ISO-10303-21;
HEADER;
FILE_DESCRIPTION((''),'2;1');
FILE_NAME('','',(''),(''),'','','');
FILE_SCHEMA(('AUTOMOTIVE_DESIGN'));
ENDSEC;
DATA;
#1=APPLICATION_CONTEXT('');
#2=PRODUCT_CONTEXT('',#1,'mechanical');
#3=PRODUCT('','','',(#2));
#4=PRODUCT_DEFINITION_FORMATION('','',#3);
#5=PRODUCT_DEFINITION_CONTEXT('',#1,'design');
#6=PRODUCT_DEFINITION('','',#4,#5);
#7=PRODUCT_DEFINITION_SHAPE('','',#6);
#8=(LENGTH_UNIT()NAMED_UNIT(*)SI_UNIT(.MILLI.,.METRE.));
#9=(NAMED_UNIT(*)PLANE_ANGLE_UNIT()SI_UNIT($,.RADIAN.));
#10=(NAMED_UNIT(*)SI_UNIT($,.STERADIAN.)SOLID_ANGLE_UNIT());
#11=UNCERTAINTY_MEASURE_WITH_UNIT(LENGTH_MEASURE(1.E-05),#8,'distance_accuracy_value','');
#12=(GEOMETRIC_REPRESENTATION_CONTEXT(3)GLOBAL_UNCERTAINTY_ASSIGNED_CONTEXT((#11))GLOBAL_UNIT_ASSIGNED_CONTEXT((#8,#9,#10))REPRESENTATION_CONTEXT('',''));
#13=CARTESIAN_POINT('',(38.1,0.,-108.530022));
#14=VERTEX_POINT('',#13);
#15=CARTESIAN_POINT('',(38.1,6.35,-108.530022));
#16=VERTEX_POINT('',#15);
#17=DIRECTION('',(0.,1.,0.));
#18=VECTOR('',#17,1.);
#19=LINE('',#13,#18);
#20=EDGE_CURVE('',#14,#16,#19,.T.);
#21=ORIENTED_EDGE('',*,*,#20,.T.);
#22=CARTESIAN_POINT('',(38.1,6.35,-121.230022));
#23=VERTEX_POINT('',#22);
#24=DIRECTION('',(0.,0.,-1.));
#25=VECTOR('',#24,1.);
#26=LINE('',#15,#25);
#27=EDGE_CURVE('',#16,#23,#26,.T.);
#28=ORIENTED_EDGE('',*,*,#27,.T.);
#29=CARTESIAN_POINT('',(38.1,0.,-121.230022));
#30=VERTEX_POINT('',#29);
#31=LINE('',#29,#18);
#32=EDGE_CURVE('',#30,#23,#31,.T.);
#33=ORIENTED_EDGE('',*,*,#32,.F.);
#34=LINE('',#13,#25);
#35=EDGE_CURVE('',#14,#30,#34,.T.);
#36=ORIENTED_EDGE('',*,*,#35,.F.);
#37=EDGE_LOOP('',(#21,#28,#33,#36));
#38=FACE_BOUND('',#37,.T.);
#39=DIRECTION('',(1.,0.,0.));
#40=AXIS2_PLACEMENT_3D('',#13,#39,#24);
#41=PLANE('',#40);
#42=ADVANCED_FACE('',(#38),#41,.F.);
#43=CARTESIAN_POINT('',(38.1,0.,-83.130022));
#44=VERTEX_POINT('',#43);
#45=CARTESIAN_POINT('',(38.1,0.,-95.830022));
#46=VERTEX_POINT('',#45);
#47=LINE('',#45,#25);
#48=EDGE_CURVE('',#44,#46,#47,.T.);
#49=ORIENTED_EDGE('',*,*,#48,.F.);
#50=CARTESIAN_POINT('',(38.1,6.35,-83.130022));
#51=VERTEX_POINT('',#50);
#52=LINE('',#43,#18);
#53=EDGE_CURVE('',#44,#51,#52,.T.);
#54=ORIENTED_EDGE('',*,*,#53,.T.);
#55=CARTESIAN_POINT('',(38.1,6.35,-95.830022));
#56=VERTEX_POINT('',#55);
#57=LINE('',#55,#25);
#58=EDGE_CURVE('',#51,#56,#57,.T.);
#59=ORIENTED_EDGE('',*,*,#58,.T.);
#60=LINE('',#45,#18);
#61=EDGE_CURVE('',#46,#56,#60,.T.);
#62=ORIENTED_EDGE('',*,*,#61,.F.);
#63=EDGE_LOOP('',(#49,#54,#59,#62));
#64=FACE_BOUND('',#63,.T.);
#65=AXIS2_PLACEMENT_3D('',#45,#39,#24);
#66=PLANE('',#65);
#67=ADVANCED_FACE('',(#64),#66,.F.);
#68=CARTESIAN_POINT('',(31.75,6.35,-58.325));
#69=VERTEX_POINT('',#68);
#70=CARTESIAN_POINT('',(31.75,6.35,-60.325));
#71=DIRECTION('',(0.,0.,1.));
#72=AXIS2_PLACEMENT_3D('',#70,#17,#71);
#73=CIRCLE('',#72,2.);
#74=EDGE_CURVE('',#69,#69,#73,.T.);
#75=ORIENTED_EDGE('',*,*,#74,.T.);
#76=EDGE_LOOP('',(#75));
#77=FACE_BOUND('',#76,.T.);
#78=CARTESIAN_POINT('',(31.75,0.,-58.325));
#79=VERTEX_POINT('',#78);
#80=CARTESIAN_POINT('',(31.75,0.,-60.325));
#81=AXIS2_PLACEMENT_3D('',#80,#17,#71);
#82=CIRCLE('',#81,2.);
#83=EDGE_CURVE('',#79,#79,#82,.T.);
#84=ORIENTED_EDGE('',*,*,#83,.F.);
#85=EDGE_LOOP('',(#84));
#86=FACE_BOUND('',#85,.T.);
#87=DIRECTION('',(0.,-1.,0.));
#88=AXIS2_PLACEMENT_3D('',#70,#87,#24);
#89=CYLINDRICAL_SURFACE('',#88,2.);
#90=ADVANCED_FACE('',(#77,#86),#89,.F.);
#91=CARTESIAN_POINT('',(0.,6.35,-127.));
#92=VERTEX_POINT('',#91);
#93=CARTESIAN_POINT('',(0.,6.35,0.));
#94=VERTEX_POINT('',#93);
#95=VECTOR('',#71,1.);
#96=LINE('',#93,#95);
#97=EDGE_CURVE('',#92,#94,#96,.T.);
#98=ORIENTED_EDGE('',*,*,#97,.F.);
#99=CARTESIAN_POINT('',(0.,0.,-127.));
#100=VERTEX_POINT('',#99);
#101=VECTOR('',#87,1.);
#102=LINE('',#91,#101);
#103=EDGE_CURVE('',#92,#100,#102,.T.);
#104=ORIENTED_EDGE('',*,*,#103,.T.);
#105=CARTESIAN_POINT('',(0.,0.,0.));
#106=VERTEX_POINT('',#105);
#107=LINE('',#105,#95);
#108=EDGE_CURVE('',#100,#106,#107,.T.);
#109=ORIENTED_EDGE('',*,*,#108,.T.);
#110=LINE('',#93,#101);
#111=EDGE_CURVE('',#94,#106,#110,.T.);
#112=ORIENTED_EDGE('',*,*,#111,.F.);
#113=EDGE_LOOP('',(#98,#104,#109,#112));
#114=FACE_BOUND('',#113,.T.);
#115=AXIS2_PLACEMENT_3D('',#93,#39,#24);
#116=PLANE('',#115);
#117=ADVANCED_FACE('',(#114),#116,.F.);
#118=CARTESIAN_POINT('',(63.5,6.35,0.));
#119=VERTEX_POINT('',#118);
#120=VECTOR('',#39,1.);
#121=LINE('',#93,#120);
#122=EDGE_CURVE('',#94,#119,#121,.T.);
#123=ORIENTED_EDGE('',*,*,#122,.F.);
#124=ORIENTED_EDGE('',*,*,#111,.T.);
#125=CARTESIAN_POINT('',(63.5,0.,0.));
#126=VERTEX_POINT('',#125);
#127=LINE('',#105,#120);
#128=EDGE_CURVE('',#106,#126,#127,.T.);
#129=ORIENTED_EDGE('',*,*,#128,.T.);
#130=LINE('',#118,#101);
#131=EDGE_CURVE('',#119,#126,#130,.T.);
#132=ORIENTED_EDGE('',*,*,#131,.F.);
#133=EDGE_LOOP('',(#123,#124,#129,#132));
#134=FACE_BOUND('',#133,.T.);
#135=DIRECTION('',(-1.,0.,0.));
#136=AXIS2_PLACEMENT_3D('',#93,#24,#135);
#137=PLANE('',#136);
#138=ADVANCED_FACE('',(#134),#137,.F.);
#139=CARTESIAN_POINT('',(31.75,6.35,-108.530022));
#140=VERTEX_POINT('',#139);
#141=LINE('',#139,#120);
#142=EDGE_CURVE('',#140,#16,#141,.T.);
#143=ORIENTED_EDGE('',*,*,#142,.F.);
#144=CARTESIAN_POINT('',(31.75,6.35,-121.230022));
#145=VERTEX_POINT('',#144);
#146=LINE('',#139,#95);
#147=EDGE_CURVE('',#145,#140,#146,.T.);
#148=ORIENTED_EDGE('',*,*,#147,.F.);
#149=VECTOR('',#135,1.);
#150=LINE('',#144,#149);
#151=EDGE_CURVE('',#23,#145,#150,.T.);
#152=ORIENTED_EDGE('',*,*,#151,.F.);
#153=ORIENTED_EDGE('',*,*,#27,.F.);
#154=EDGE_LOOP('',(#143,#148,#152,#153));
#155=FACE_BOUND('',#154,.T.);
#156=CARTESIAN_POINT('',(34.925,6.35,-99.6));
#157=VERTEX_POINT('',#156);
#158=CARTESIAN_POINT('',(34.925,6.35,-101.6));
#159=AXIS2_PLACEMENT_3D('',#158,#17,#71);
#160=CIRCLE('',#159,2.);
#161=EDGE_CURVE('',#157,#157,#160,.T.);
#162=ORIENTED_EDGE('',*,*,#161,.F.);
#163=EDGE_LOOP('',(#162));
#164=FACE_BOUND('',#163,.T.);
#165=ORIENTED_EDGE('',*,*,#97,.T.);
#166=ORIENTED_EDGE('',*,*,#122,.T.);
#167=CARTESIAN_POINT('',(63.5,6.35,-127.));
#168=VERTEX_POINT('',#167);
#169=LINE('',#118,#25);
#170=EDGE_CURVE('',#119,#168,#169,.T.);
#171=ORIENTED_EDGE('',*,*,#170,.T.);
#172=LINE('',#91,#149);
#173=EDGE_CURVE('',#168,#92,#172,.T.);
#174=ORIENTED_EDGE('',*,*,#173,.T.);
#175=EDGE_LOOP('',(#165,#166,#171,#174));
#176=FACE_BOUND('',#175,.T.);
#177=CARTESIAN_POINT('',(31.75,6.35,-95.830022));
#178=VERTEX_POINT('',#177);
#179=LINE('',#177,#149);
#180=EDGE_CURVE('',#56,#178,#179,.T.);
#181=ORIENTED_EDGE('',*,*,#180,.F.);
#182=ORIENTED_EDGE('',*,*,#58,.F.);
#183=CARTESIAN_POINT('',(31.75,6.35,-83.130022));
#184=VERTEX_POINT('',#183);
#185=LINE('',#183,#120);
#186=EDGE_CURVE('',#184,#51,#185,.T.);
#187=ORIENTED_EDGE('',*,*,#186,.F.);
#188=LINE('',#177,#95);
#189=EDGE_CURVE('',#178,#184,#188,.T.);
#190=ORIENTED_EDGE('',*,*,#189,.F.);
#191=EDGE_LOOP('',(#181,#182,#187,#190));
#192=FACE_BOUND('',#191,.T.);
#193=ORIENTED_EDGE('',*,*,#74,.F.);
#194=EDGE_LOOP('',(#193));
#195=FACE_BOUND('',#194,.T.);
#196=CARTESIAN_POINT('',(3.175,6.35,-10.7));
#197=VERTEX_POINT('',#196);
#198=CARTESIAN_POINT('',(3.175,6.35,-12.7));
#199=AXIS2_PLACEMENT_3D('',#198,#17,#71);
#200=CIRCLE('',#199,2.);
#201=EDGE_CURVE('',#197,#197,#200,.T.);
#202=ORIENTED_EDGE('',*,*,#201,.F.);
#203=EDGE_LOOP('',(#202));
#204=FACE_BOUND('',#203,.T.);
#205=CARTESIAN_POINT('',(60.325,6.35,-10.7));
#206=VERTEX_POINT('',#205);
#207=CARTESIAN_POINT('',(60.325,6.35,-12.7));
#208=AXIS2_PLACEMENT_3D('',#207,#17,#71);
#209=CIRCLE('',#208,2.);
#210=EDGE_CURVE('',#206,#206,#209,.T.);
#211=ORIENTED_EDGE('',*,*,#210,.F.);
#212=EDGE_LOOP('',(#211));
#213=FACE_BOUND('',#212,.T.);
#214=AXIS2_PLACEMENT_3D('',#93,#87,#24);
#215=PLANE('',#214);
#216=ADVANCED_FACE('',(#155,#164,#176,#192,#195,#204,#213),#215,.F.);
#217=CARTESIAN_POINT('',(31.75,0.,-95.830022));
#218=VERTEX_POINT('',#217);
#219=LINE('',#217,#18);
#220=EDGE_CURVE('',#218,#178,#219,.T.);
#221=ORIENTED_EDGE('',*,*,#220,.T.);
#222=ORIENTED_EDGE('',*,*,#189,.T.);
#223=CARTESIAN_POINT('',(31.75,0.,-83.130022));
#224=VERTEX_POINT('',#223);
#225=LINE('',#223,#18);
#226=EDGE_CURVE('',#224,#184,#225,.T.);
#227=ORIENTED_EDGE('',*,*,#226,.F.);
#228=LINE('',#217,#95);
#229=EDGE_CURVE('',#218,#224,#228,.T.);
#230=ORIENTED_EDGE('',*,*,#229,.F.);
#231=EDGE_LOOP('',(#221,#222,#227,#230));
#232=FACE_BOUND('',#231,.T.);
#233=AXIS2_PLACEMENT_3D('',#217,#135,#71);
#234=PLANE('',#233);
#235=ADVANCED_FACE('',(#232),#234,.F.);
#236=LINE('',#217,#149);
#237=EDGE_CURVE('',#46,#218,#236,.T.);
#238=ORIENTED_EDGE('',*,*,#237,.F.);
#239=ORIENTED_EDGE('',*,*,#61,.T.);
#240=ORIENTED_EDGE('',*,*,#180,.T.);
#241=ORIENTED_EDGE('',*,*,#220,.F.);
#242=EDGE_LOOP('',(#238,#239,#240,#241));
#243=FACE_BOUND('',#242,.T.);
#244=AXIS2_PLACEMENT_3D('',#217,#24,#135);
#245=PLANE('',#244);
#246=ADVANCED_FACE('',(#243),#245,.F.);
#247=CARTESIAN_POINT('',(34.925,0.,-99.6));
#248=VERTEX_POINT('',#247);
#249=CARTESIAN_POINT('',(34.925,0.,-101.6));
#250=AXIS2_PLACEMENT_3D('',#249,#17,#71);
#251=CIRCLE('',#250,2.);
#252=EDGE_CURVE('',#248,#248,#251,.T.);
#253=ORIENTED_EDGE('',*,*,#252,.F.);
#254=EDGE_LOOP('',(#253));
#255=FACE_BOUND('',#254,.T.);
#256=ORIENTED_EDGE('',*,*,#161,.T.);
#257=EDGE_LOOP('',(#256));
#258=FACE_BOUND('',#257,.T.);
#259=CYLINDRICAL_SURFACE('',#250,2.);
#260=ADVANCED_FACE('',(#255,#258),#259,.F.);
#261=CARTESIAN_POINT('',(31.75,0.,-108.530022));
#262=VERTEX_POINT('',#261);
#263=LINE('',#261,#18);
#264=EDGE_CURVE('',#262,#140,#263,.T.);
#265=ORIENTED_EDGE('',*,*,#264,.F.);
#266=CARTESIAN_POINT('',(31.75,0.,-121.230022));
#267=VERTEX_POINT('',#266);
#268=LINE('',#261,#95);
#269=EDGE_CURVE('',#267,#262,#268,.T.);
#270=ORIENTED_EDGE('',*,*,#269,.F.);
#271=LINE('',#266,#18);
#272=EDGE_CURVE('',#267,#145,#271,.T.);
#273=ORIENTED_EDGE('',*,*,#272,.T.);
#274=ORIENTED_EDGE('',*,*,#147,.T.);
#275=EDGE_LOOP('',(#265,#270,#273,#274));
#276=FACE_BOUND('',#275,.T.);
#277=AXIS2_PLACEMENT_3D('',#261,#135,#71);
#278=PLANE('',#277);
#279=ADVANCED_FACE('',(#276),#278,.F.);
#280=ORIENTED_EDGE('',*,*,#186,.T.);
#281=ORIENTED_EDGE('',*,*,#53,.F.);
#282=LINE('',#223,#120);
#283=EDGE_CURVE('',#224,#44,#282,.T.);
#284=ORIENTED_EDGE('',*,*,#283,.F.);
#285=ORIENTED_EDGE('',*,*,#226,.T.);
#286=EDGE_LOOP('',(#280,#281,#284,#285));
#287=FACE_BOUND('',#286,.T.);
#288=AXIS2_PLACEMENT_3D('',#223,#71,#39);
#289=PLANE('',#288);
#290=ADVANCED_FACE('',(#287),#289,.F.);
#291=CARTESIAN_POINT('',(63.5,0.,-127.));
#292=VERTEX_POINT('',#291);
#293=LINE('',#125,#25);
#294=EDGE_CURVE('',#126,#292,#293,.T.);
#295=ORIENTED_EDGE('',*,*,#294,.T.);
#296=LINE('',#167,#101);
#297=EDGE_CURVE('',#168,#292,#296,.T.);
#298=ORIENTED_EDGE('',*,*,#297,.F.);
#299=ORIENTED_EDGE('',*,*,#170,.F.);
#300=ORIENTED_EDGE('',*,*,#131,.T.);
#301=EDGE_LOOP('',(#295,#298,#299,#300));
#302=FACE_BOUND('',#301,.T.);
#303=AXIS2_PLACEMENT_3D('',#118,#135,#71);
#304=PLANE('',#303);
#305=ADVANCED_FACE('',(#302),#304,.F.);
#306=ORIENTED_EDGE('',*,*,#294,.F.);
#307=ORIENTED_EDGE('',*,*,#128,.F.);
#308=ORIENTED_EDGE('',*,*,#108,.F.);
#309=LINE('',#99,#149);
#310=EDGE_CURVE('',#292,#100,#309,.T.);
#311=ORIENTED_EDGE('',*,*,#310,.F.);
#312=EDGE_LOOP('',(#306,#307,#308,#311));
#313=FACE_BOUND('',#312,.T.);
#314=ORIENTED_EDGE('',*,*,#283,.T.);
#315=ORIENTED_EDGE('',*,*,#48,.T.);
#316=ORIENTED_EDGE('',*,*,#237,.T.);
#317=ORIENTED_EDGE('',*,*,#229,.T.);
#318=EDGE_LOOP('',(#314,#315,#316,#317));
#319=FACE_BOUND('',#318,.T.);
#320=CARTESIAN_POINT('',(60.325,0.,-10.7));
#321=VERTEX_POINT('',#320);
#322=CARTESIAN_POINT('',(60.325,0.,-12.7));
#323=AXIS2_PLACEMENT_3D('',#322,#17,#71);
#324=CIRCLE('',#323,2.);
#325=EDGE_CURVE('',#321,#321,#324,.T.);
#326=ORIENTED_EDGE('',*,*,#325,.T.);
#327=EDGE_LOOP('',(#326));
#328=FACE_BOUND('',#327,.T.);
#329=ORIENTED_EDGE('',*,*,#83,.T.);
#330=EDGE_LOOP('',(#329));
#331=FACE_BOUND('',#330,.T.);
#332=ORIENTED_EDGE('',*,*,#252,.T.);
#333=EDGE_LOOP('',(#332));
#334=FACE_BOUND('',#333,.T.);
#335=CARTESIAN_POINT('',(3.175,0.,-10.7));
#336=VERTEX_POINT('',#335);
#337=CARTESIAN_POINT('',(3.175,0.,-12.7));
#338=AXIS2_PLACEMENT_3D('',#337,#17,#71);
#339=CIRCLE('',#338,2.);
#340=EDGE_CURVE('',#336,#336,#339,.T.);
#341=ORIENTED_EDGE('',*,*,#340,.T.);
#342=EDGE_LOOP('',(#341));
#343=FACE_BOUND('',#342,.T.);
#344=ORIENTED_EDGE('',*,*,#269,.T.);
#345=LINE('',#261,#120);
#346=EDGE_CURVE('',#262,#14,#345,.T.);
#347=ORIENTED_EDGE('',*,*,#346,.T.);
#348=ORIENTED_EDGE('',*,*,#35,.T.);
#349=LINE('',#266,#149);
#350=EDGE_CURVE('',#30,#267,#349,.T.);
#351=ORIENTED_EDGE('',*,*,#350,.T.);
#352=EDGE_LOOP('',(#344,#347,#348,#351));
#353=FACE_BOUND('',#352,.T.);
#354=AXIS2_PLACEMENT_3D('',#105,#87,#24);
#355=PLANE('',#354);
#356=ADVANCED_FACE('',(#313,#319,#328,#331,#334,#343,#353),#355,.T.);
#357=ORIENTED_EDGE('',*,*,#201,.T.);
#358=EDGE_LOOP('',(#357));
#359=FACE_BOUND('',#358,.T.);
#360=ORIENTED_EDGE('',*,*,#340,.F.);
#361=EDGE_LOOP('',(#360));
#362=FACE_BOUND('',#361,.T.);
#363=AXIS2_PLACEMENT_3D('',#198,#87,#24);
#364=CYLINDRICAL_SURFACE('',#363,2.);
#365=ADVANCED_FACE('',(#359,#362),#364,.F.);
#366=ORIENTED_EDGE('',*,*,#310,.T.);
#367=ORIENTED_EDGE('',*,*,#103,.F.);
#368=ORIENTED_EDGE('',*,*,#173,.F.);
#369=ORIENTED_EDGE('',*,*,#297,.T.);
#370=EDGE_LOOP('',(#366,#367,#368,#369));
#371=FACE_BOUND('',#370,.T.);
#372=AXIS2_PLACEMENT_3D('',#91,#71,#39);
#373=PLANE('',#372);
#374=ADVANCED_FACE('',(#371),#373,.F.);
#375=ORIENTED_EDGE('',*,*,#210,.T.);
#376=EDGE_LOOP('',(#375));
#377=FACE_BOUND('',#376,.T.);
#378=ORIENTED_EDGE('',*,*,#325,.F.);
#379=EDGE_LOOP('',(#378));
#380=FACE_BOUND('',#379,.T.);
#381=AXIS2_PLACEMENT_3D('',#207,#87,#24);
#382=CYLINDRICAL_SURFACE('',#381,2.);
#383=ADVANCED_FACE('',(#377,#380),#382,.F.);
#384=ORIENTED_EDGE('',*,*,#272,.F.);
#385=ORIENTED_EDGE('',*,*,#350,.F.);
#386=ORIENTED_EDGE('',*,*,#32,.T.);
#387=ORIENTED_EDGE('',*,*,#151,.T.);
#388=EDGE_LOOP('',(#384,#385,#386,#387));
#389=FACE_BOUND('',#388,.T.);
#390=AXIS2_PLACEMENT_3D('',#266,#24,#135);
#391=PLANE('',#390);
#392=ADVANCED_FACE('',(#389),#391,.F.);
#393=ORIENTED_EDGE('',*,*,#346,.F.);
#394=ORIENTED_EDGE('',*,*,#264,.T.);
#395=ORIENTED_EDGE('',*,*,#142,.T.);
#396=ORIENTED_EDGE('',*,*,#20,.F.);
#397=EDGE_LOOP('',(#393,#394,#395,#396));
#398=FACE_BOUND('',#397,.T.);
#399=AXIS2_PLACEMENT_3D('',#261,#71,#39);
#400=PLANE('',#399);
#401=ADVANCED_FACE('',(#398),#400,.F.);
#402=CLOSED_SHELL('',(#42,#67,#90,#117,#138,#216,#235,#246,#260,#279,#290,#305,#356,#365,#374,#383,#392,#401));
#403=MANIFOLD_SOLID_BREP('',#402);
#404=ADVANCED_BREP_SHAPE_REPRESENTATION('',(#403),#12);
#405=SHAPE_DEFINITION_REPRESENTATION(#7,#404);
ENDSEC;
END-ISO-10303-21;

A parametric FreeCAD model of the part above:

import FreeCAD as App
import Part
import Sketcher

V = App.Vector
Q = App.Units.Quantity

doc = App.newDocument("Part")
body = doc.addObject("PartDesign::Body", "Body")

# Sketch on XZ plane
sketch1 = doc.addObject("Sketcher::SketchObject", "Sketch")
body.addObject(sketch1)
sketch1.AttachmentSupport = (doc.XZ_Plane, [""])
sketch1.MapMode = "FlatFace"
sketch1.addGeometry(Part.LineSegment(V(0, -127, 0), V(0, 0, 0)), False)
sketch1.addGeometry(Part.LineSegment(V(0, 0, 0), V(63.5, 0, 0)), False)
sketch1.addGeometry(Part.LineSegment(V(63.5, 0, 0), V(63.5, -127, 0)), False)
sketch1.addGeometry(Part.LineSegment(V(63.5, -127, 0), V(0, -127, 0)), False)
sketch1.addGeometry(Part.Circle(V(3.175, -12.7, 0), V(0, 0, 1), 2), False)
sketch1.addGeometry(Part.Circle(V(60.325, -12.7, 0), V(0, 0, 1), 2), False)
sketch1.addGeometry(Part.Circle(V(31.75, -60.325, 0), V(0, 0, 1), 2), False)
sketch1.addConstraint(Sketcher.Constraint("Coincident", 0, 2, 1, 1))
sketch1.addConstraint(Sketcher.Constraint("Coincident", 1, 2, 2, 1))
sketch1.addConstraint(Sketcher.Constraint("Coincident", 2, 2, 3, 1))
sketch1.addConstraint(Sketcher.Constraint("Coincident", 3, 2, 0, 1))
sketch1.addConstraint(Sketcher.Constraint("Vertical", 0))
sketch1.addConstraint(Sketcher.Constraint("Horizontal", 1))
sketch1.addConstraint(Sketcher.Constraint("Vertical", 2))
sketch1.addConstraint(Sketcher.Constraint("Horizontal", 3))
sketch1.addConstraint(Sketcher.Constraint("Coincident", 0, 2, -1, 1))
sketch1.addConstraint(Sketcher.Constraint("Equal", 4, 5))
sketch1.addConstraint(Sketcher.Constraint("Equal", 5, 6))
sketch1.addConstraint(Sketcher.Constraint("Horizontal", 4, 3, 5, 3))
sketch1.addConstraint(Sketcher.Constraint("DistanceY", 0, 1, 0, 2, Q("5 in")))
sketch1.addConstraint(Sketcher.Constraint("DistanceX", 1, 1, 1, 2, Q("2.5 in")))
sketch1.addConstraint(Sketcher.Constraint("DistanceY", 4, 3, -1, 1, Q("0.5 in")))
sketch1.addConstraint(Sketcher.Constraint("Diameter", 4, Q("4 mm")))
sketch1.addConstraint(Sketcher.Constraint("DistanceX", -1, 1, 6, 3, Q("1.25 in")))
sketch1.addConstraint(Sketcher.Constraint("DistanceX", 4, 3, 5, 3, Q("2.25 in")))
sketch1.addConstraint(Sketcher.Constraint("DistanceX", -1, 1, 4, 3, Q("0.125 in")))
sketch1.addConstraint(Sketcher.Constraint("DistanceY", 6, 3, -1, 1, Q("2.375 in")))
pad1 = doc.addObject("PartDesign::Pad", "Pad")
body.addObject(pad1)
pad1.Profile = sketch1
pad1.Length = Q("0.25 in")
pad1.Reversed = True

# Sketch on XZ plane
sketch2 = doc.addObject("Sketcher::SketchObject", "Sketch001")
body.addObject(sketch2)
sketch2.AttachmentSupport = (doc.XZ_Plane, [""])
sketch2.MapMode = "FlatFace"
sketch2.AttachmentOffset = App.Placement(V(0, 0, -0.25 * 25.4), App.Rotation())
sketch2.addGeometry(Part.Circle(V(34.925, -101.6, 0), V(0, 0, 1), 2), False)
sketch2.addGeometry(Part.LineSegment(V(31.75, -95.830022, 0), V(31.75, -83.130022, 0)), False)
sketch2.addGeometry(Part.LineSegment(V(31.75, -83.130022, 0), V(38.1, -83.130022, 0)), False)
sketch2.addGeometry(Part.LineSegment(V(38.1, -83.130022, 0), V(38.1, -95.830022, 0)), False)
sketch2.addGeometry(Part.LineSegment(V(38.1, -95.830022, 0), V(31.75, -95.830022, 0)), False)
sketch2.addGeometry(Part.LineSegment(V(31.75, -121.230022, 0), V(31.75, -108.530022, 0)), False)
sketch2.addGeometry(Part.LineSegment(V(31.75, -108.530022, 0), V(38.1, -108.530022, 0)), False)
sketch2.addGeometry(Part.LineSegment(V(38.1, -108.530022, 0), V(38.1, -121.230022, 0)), False)
sketch2.addGeometry(Part.LineSegment(V(38.1, -121.230022, 0), V(31.75, -121.230022, 0)), False)
sketch2.addConstraint(Sketcher.Constraint("Coincident", 1, 2, 2, 1))
sketch2.addConstraint(Sketcher.Constraint("Coincident", 2, 2, 3, 1))
sketch2.addConstraint(Sketcher.Constraint("Coincident", 3, 2, 4, 1))
sketch2.addConstraint(Sketcher.Constraint("Coincident", 4, 2, 1, 1))
sketch2.addConstraint(Sketcher.Constraint("Coincident", 5, 2, 6, 1))
sketch2.addConstraint(Sketcher.Constraint("Coincident", 6, 2, 7, 1))
sketch2.addConstraint(Sketcher.Constraint("Coincident", 7, 2, 8, 1))
sketch2.addConstraint(Sketcher.Constraint("Coincident", 8, 2, 5, 1))
sketch2.addConstraint(Sketcher.Constraint("Vertical", 1))
sketch2.addConstraint(Sketcher.Constraint("Horizontal", 2))
sketch2.addConstraint(Sketcher.Constraint("Vertical", 3))
sketch2.addConstraint(Sketcher.Constraint("Horizontal", 4))
sketch2.addConstraint(Sketcher.Constraint("Vertical", 5))
sketch2.addConstraint(Sketcher.Constraint("Horizontal", 6))
sketch2.addConstraint(Sketcher.Constraint("Vertical", 7))
sketch2.addConstraint(Sketcher.Constraint("Horizontal", 8))
sketch2.addConstraint(Sketcher.Constraint("Vertical", 4, 2, 5, 2))
sketch2.addConstraint(Sketcher.Constraint("Vertical", 3, 2, 6, 2))
sketch2.addConstraint(Sketcher.Constraint("Equal", 3, 5))
sketch2.addConstraint(Sketcher.Constraint("DistanceY", 1, 1, 1, 2, Q("0.5 in")))
sketch2.addConstraint(Sketcher.Constraint("DistanceY", 0, 3, -1, 1, Q("4 in")))
sketch2.addConstraint(Sketcher.Constraint("DistanceY", 5, 2, 1, 2, Q("1 in")))
sketch2.addConstraint(Sketcher.Constraint("DistanceX", 2, 1, 2, 2, Q("0.25 in")))
sketch2.addConstraint(Sketcher.Constraint("DistanceX", -1, 1, 2, 2, Q("1.5 in")))
sketch2.addConstraint(Sketcher.Constraint("Diameter", 0, Q("4 mm")))
sketch2.addConstraint(Sketcher.Constraint("DistanceX", -1, 1, 0, 3, Q("1.375 in")))
sketch2.addConstraint(Sketcher.Constraint("DistanceY", 1, 2, -1, 1, Q("83.130022 mm")))
pocket1 = doc.addObject("PartDesign::Pocket", "Pocket")
body.addObject(pocket1)
pocket1.Profile = sketch2
pocket1.Length = Q("0.25 in")
pocket1.Reversed = True

doc.recompute()
